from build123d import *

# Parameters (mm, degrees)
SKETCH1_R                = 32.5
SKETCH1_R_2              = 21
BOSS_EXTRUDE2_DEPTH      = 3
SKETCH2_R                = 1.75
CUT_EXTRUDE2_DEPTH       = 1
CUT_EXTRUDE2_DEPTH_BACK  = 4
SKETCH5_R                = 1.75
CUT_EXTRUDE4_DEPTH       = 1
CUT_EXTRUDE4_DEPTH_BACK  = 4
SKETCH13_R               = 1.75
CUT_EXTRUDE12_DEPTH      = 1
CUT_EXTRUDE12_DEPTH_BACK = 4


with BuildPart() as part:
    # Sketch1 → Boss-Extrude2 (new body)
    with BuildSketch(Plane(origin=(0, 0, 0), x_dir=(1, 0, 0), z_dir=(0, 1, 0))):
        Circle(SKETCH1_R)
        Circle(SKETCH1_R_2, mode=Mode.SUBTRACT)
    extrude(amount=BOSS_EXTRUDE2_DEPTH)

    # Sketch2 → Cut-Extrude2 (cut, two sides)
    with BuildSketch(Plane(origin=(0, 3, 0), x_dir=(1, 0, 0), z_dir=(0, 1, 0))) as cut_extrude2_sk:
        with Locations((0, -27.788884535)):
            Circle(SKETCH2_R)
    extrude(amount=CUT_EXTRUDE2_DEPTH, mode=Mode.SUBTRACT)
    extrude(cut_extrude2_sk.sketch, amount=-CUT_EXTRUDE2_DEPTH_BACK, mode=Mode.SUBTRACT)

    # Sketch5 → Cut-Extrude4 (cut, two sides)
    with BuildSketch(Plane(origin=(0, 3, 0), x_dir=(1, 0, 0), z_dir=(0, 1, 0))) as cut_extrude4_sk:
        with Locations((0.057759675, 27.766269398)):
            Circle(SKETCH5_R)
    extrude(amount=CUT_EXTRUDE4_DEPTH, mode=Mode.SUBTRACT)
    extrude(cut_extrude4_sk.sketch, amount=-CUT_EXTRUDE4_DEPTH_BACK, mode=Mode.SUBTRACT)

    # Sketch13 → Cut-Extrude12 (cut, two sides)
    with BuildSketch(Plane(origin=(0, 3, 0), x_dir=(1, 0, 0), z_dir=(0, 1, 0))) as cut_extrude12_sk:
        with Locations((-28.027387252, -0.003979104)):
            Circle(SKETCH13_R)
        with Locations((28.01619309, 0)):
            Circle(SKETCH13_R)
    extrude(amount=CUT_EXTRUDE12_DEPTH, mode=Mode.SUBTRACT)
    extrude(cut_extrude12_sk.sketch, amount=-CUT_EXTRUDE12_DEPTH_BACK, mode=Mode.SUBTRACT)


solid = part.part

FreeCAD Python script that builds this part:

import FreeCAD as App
import Part
import Sketcher
Q = App.Units.Quantity

doc = App.newDocument("Part")
params = doc.addObject("Spreadsheet::Sheet", "Params")
for row, (alias, value) in enumerate([
    ("sketch1_diameter", "65 mm"),
    ("sketch1_diameter2", "42 mm"),
    ("pad1_length", "3 mm"),
    ("sketch2_diameter", "3.5 mm"),
    ("sketch3_diameter", "3.5 mm"),
    ("sketch4_diameter", "3.5 mm"),
], start=1):
    params.set(f"A{row}", alias)
    params.set(f"B{row}", "=" + value)
    params.setAlias(f"B{row}", alias)

body = doc.addObject("PartDesign::Body", "Body")

sketch1 = body.newObject("Sketcher::SketchObject", "Sketch")
sketch1.AttachmentSupport = (doc.getObject("XZ_Plane"), [""])
sketch1.MapMode = "FlatFace"
sketch1.addGeometry([
    Part.Circle(App.Vector(0, 0, 0), App.Vector(0, 0, 1), 32),
    Part.Circle(App.Vector(0, 0, 0), App.Vector(0, 0, 1), 21),
], False)
sketch1.addConstraint([
    Sketcher.Constraint("Coincident", 0, 3, -1, 1),
    Sketcher.Constraint("Coincident", 1, 3, -1, 1),
    Sketcher.Constraint("Diameter", 0, Q("65 mm")),
    Sketcher.Constraint("Diameter", 1, Q("42 mm")),
])
sketch1.setExpression("Constraints[2]", "Params.sketch1_diameter")
sketch1.setExpression("Constraints[3]", "Params.sketch1_diameter2")
pad1 = body.newObject("PartDesign::Pad", "Pad")
pad1.Profile = sketch1
pad1.setExpression("Length", "Params.pad1_length")
pad1.Reversed = True

sketch2 = body.newObject("Sketcher::SketchObject", "Sketch001")
sketch2.AttachmentSupport = (doc.getObject("XZ_Plane"), [""])
sketch2.MapMode = "FlatFace"
sketch2.AttachmentOffset = App.Placement(App.Vector(0, 0, -3), App.Rotation())
sketch2.addGeometry(Part.Circle(App.Vector(0, 27.8, 0), App.Vector(0, 0, 1), 1.8), False)
sketch2.addConstraint([
    Sketcher.Constraint("PointOnObject", 0, 3, -2),
    Sketcher.Constraint("Diameter", 0, Q("3.5 mm")),
    Sketcher.Constraint("DistanceY", -1, 1, 0, 3, Q("27.788885 mm")),
])
sketch2.setExpression("Constraints[1]", "Params.sketch2_diameter")
pocket1 = body.newObject("PartDesign::Pocket", "Pocket")
pocket1.Profile = sketch2
pocket1.Type = "ThroughAll"
pocket1.Midplane = True

sketch3 = body.newObject("Sketcher::SketchObject", "Sketch002")
sketch3.AttachmentSupport = (doc.getObject("XZ_Plane"), [""])
sketch3.MapMode = "FlatFace"
sketch3.AttachmentOffset = App.Placement(App.Vector(0, 0, -3), App.Rotation())
sketch3.addGeometry(Part.Circle(App.Vector(0.1, -27.8, 0), App.Vector(0, 0, 1), 1.8), False)
sketch3.addConstraint([
    Sketcher.Constraint("Diameter", 0, Q("3.5 mm")),
    Sketcher.Constraint("DistanceX", -1, 1, 0, 3, Q("0.05776 mm")),
    Sketcher.Constraint("DistanceY", 0, 3, -1, 1, Q("27.766269 mm")),
])
sketch3.setExpression("Constraints[0]", "Params.sketch3_diameter")
pocket2 = body.newObject("PartDesign::Pocket", "Pocket001")
pocket2.Profile = sketch3
pocket2.Type = "ThroughAll"
pocket2.Midplane = True

sketch4 = body.newObject("Sketcher::SketchObject", "Sketch003")
sketch4.AttachmentSupport = (doc.getObject("XZ_Plane"), [""])
sketch4.MapMode = "FlatFace"
sketch4.AttachmentOffset = App.Placement(App.Vector(0, 0, -3), App.Rotation())
sketch4.addGeometry([
    Part.Circle(App.Vector(-28, 0, 0), App.Vector(0, 0, 1), 1.8),
    Part.Circle(App.Vector(28, 0, 0), App.Vector(0, 0, 1), 1.8),
], False)
sketch4.addConstraint([
    Sketcher.Constraint("Equal", 0, 1),
    Sketcher.Constraint("PointOnObject", 1, 3, -1),
    Sketcher.Constraint("Diameter", 0, Q("3.5 mm")),
    Sketcher.Constraint("DistanceY", -1, 1, 0, 3, Q("0.003979 mm")),
    Sketcher.Constraint("DistanceX", 0, 3, 1, 3, Q("56.04358 mm")),
    Sketcher.Constraint("DistanceX", 0, 3, -1, 1, Q("28.027387 mm")),
])
sketch4.setExpression("Constraints[2]", "Params.sketch4_diameter")
pocket3 = body.newObject("PartDesign::Pocket", "Pocket002")
pocket3.Profile = sketch4
pocket3.Type = "ThroughAll"
pocket3.Midplane = True

doc.recompute()
